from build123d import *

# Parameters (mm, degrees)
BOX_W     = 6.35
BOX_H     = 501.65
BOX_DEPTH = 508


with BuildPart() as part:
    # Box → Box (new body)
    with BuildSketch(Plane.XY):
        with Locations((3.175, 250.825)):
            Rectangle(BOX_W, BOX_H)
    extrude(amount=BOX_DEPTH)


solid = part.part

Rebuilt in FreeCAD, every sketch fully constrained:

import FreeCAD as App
import Part
import Sketcher
from FreeCAD import Vector
Q = App.Units.Quantity


def add_polygon(sketch, points):
    """Adds a closed chain of lines whose ends are joined by coincident constraints."""
    first, n = sketch.GeometryCount, len(points)
    for a, b in zip(points, points[1:] + points[:1]):
        sketch.addGeometry(Part.LineSegment(App.Vector(*a, 0), App.Vector(*b, 0)), False)
    for i in range(n):
        sketch.addConstraint(Sketcher.Constraint("Coincident", first + i, 2, first + (i + 1) % n, 1))

doc = App.newDocument("Part")
body = doc.addObject("PartDesign::Body", "Body")

# Sketch on XY plane
sketch1 = doc.addObject("Sketcher::SketchObject", "Sketch")
body.addObject(sketch1)
sketch1.AttachmentSupport = (doc.XY_Plane, [""])
sketch1.MapMode = "FlatFace"
add_polygon(sketch1, [(0, 502), (0, 0), (6, 0), (6, 502)])  # lines 0-3
sketch1.addConstraint([
    Sketcher.Constraint("Vertical", 0),
    Sketcher.Constraint("Horizontal", 1),
    Sketcher.Constraint("Vertical", 2),
    Sketcher.Constraint("Horizontal", 3),
    Sketcher.Constraint("Coincident", 0, 2, -1, 1),
    Sketcher.Constraint("DistanceX", 1, 1, 1, 2, Q("0.25 in")),
    Sketcher.Constraint("DistanceY", 0, 2, 0, 1, Q("19.75 in")),
])
pad1 = doc.addObject("PartDesign::Pad", "Pad")
body.addObject(pad1)
pad1.Profile = sketch1
pad1.Length = Q("20 in")

doc.recompute()
